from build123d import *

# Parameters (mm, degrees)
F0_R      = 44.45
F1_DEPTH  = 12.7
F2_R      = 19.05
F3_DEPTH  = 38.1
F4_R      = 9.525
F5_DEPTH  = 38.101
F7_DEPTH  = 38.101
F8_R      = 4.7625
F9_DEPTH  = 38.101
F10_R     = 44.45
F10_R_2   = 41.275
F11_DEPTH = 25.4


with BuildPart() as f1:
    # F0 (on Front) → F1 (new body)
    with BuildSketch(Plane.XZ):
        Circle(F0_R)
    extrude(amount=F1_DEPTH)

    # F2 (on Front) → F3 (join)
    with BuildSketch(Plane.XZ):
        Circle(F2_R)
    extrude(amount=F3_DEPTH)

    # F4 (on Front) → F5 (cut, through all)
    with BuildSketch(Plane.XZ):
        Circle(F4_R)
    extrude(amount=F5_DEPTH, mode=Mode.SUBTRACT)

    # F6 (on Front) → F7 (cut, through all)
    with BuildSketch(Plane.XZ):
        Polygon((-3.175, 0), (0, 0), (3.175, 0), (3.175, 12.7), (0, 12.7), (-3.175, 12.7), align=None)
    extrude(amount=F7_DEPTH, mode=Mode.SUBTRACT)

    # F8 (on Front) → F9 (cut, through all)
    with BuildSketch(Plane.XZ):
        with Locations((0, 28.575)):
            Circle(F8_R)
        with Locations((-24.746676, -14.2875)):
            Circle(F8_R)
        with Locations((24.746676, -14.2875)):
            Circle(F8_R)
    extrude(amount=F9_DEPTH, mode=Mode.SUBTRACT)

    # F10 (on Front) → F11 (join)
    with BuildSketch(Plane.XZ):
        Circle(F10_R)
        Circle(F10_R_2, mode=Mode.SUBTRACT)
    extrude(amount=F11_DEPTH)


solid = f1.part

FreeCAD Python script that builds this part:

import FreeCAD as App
import Part
import Sketcher

V = App.Vector
Q = App.Units.Quantity


def add_polygon(sketch, points):
    """Adds a closed chain of lines whose ends are joined by coincident constraints."""
    first, n = sketch.GeometryCount, len(points)
    for a, b in zip(points, points[1:] + points[:1]):
        sketch.addGeometry(Part.LineSegment(App.Vector(*a, 0), App.Vector(*b, 0)), False)
    for i in range(n):
        sketch.addConstraint(Sketcher.Constraint("Coincident", first + i, 2, first + (i + 1) % n, 1))

doc = App.newDocument("Part")
params = doc.addObject("Spreadsheet::Sheet", "Params")
for row, (alias, value) in enumerate([
    ("sketch1_diameter", "3.5 in"),
    ("pad1_length", "0.5 in"),
    ("sketch2_diameter", "1.5 in"),
    ("pad2_length", "1.5 in"),
    ("sketch3_diameter", "0.75 in"),
    ("sketch4_height", "0.5 in"),
    ("sketch4_width", "0.25 in"),
    ("sketch5_diameter", "0.375 in"),
    ("sketch6_diameter", "3.5 in"),
    ("sketch6_diameter2", "3.25 in"),
    ("pad3_length", "1 in"),
], start=1):
    params.set(f"A{row}", alias)
    params.set(f"B{row}", "=" + value)
    params.setAlias(f"B{row}", alias)

body = doc.addObject("PartDesign::Body", "Body")

# Sketch on XZ plane
sketch1 = doc.addObject("Sketcher::SketchObject", "Sketch")
body.addObject(sketch1)
sketch1.AttachmentSupport = (doc.XZ_Plane, [""])
sketch1.MapMode = "FlatFace"
sketch1.addGeometry(Part.Circle(V(0, 0, 0), V(0, 0, 1), 44), False)
sketch1.addConstraint(Sketcher.Constraint("Coincident", 0, 3, -1, 1))
sketch1.addConstraint(Sketcher.Constraint("Diameter", 0, Q("3.5 in")))
sketch1.setExpression("Constraints[1]", "Params.sketch1_diameter")
pad1 = doc.addObject("PartDesign::Pad", "Pad")
body.addObject(pad1)
pad1.Profile = sketch1
pad1.setExpression("Length", "Params.pad1_length")

# Sketch on XZ plane
sketch2 = doc.addObject("Sketcher::SketchObject", "Sketch001")
body.addObject(sketch2)
sketch2.AttachmentSupport = (doc.XZ_Plane, [""])
sketch2.MapMode = "FlatFace"
sketch2.addGeometry(Part.Circle(V(0, 0, 0), V(0, 0, 1), 19), False)
sketch2.addConstraint(Sketcher.Constraint("Coincident", 0, 3, -1, 1))
sketch2.addConstraint(Sketcher.Constraint("Diameter", 0, Q("1.5 in")))
sketch2.setExpression("Constraints[1]", "Params.sketch2_diameter")
pad2 = doc.addObject("PartDesign::Pad", "Pad001")
body.addObject(pad2)
pad2.Profile = sketch2
pad2.setExpression("Length", "Params.pad2_length")

# Sketch on XZ plane
sketch3 = doc.addObject("Sketcher::SketchObject", "Sketch002")
body.addObject(sketch3)
sketch3.AttachmentSupport = (doc.XZ_Plane, [""])
sketch3.MapMode = "FlatFace"
sketch3.addGeometry(Part.Circle(V(0, 0, 0), V(0, 0, 1), 10), False)
sketch3.addConstraint(Sketcher.Constraint("Coincident", 0, 3, -1, 1))
sketch3.addConstraint(Sketcher.Constraint("Diameter", 0, Q("0.75 in")))
sketch3.setExpression("Constraints[1]", "Params.sketch3_diameter")
pocket1 = doc.addObject("PartDesign::Pocket", "Pocket")
body.addObject(pocket1)
pocket1.Profile = sketch3
pocket1.Type = "ThroughAll"
pocket1.Reversed = True

# Sketch on XZ plane
sketch4 = doc.addObject("Sketcher::SketchObject", "Sketch003")
body.addObject(sketch4)
sketch4.AttachmentSupport = (doc.XZ_Plane, [""])
sketch4.MapMode = "FlatFace"
add_polygon(sketch4, [(-3, 0), (3, 0), (3, 13), (-3, 13)])  # lines 0-3
sketch4.addConstraint(Sketcher.Constraint("Horizontal", 0))
sketch4.addConstraint(Sketcher.Constraint("Vertical", 1))
sketch4.addConstraint(Sketcher.Constraint("Horizontal", 2))
sketch4.addConstraint(Sketcher.Constraint("Vertical", 3))
sketch4.addConstraint(Sketcher.Constraint("Symmetric", 0, 2, 3, 2, -1, 1))
sketch4.addConstraint(Sketcher.Constraint("DistanceY", 1, 1, 1, 2, Q("0.5 in")))
sketch4.addConstraint(Sketcher.Constraint("DistanceX", 0, 1, 0, 2, Q("0.25 in")))
sketch4.setExpression("Constraints[9]", "Params.sketch4_height")
sketch4.setExpression("Constraints[10]", "Params.sketch4_width")
pocket2 = doc.addObject("PartDesign::Pocket", "Pocket001")
body.addObject(pocket2)
pocket2.Profile = sketch4
pocket2.Type = "ThroughAll"
pocket2.Reversed = True

# Sketch on XZ plane
sketch5 = doc.addObject("Sketcher::SketchObject", "Sketch004")
body.addObject(sketch5)
sketch5.AttachmentSupport = (doc.XZ_Plane, [""])
sketch5.MapMode = "FlatFace"
sketch5.addGeometry(Part.Circle(V(0, 28.6, 0), V(0, 0, 1), 4.8), False)
sketch5.addGeometry(Part.Circle(V(-24.7, -14.3, 0), V(0, 0, 1), 4.8), False)
sketch5.addGeometry(Part.Circle(V(24.7, -14.3, 0), V(0, 0, 1), 4.8), False)
sketch5.addConstraint(Sketcher.Constraint("Equal", 0, 1))
sketch5.addConstraint(Sketcher.Constraint("Equal", 1, 2))
sketch5.addConstraint(Sketcher.Constraint("Symmetric", 1, 3, 2, 3, -2))
sketch5.addConstraint(Sketcher.Constraint("PointOnObject", 0, 3, -2))
sketch5.addConstraint(Sketcher.Constraint("Diameter", 0, Q("0.375 in")))
sketch5.addConstraint(Sketcher.Constraint("DistanceY", -1, 1, 0, 3, Q("1.125 in")))
sketch5.addConstraint(Sketcher.Constraint("DistanceY", 1, 3, -1, 1, Q("0.5625 in")))
sketch5.addConstraint(Sketcher.Constraint("DistanceX", 1, 3, -1, 1, 24.746676))
sketch5.setExpression("Constraints[4]", "Params.sketch5_diameter")
pocket3 = doc.addObject("PartDesign::Pocket", "Pocket002")
body.addObject(pocket3)
pocket3.Profile = sketch5
pocket3.Type = "ThroughAll"
pocket3.Reversed = True

# Sketch on XZ plane
sketch6 = doc.addObject("Sketcher::SketchObject", "Sketch005")
body.addObject(sketch6)
sketch6.AttachmentSupport = (doc.XZ_Plane, [""])
sketch6.MapMode = "FlatFace"
sketch6.addGeometry(Part.Circle(V(0, 0, 0), V(0, 0, 1), 44), False)
sketch6.addGeometry(Part.Circle(V(0, 0, 0), V(0, 0, 1), 41), False)
sketch6.addConstraint(Sketcher.Constraint("Coincident", 0, 3, -1, 1))
sketch6.addConstraint(Sketcher.Constraint("Coincident", 1, 3, -1, 1))
sketch6.addConstraint(Sketcher.Constraint("Diameter", 0, Q("3.5 in")))
sketch6.addConstraint(Sketcher.Constraint("Diameter", 1, Q("3.25 in")))
sketch6.setExpression("Constraints[2]", "Params.sketch6_diameter")
sketch6.setExpression("Constraints[3]", "Params.sketch6_diameter2")
pad3 = doc.addObject("PartDesign::Pad", "Pad002")
body.addObject(pad3)
pad3.Profile = sketch6
pad3.setExpression("Length", "Params.pad3_length")

doc.recompute()
